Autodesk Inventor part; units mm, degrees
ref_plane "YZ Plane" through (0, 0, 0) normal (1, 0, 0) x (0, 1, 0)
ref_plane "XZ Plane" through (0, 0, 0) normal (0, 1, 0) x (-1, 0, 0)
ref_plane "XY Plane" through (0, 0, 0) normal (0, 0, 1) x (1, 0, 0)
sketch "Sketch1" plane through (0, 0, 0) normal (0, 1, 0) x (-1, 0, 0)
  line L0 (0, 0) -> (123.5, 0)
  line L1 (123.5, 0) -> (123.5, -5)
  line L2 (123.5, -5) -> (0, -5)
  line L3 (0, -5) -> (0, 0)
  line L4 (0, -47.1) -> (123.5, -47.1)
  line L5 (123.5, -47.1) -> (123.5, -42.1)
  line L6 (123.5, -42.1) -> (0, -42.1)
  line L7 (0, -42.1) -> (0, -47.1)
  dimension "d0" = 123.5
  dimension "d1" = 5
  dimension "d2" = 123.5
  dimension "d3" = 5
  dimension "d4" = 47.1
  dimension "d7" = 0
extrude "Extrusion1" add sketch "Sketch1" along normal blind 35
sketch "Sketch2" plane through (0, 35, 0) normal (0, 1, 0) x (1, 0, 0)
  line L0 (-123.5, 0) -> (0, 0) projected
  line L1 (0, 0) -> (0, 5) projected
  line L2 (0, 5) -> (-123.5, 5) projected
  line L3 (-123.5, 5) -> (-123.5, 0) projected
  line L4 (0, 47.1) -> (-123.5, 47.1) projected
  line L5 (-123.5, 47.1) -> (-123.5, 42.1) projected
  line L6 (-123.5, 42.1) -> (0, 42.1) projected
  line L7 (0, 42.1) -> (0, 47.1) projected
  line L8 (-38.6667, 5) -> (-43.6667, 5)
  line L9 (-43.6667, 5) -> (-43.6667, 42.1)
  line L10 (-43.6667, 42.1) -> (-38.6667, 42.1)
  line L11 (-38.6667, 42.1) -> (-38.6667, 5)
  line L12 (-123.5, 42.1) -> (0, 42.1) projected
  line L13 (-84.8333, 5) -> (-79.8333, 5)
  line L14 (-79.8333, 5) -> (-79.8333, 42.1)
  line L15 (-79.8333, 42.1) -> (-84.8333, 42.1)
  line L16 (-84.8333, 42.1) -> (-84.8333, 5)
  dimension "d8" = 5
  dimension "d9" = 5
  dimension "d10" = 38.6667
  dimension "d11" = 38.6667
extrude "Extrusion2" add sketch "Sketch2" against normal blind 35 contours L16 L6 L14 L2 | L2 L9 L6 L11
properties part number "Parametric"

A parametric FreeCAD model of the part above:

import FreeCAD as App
import Part
import Sketcher

doc = App.newDocument("Part")
body = doc.addObject("PartDesign::Body", "Body")
body.AllowCompound = True

sketch1 = body.newObject("Sketcher::SketchObject", "Sketch")
sketch1.AttachmentSupport = (doc.getObject("XZ_Plane"), [""])
sketch1.MapMode = "FlatFace"
sketch1.addGeometry(Part.LineSegment(App.Vector(-124, 0, 0), App.Vector(0, 0, 0)), False)
sketch1.addGeometry(Part.LineSegment(App.Vector(0, 0, 0), App.Vector(0, -5, 0)), False)
sketch1.addGeometry(Part.LineSegment(App.Vector(0, -5, 0), App.Vector(-124, -5, 0)), False)
sketch1.addGeometry(Part.LineSegment(App.Vector(-124, -5, 0), App.Vector(-124, 0, 0)), False)
sketch1.addGeometry(Part.LineSegment(App.Vector(0, -42, 0), App.Vector(0, -47, 0)), False)
sketch1.addGeometry(Part.LineSegment(App.Vector(0, -47, 0), App.Vector(-124, -47, 0)), False)
sketch1.addGeometry(Part.LineSegment(App.Vector(-124, -47, 0), App.Vector(-124, -42, 0)), False)
sketch1.addGeometry(Part.LineSegment(App.Vector(-124, -42, 0), App.Vector(0, -42, 0)), False)
sketch1.addConstraint(Sketcher.Constraint("Coincident", 0, 2, 1, 1))
sketch1.addConstraint(Sketcher.Constraint("Coincident", 1, 2, 2, 1))
sketch1.addConstraint(Sketcher.Constraint("Coincident", 2, 2, 3, 1))
sketch1.addConstraint(Sketcher.Constraint("Coincident", 3, 2, 0, 1))
sketch1.addConstraint(Sketcher.Constraint("Coincident", 4, 2, 5, 1))
sketch1.addConstraint(Sketcher.Constraint("Coincident", 5, 2, 6, 1))
sketch1.addConstraint(Sketcher.Constraint("Coincident", 6, 2, 7, 1))
sketch1.addConstraint(Sketcher.Constraint("Coincident", 7, 2, 4, 1))
sketch1.addConstraint(Sketcher.Constraint("Horizontal", 0))
sketch1.addConstraint(Sketcher.Constraint("Vertical", 1))
sketch1.addConstraint(Sketcher.Constraint("Horizontal", 2))
sketch1.addConstraint(Sketcher.Constraint("Vertical", 3))
sketch1.addConstraint(Sketcher.Constraint("Vertical", 4))
sketch1.addConstraint(Sketcher.Constraint("Horizontal", 5))
sketch1.addConstraint(Sketcher.Constraint("Vertical", 6))
sketch1.addConstraint(Sketcher.Constraint("Horizontal", 7))
sketch1.addConstraint(Sketcher.Constraint("Coincident", 0, 2, -1, 1))
sketch1.addConstraint(Sketcher.Constraint("PointOnObject", 4, 2, -2))
sketch1.addConstraint(Sketcher.Constraint("Vertical", 3, 2, 5, 2))
sketch1.addConstraint(Sketcher.Constraint("Equal", 3, 4))
sketch1.addConstraint(Sketcher.Constraint("DistanceY", 1, 2, 1, 1, 5.0))
sketch1.addConstraint(Sketcher.Constraint("DistanceX", 0, 1, 0, 2, 123.5))
sketch1.addConstraint(Sketcher.Constraint("DistanceY", 4, 2, -1, 1, 47.1))
pad1 = body.newObject("PartDesign::Pad", "Pad")
pad1.Profile = sketch1
pad1.Length = 35
pad1.Reversed = True

sketch2 = body.newObject("Sketcher::SketchObject", "Sketch001")
sketch2.AttachmentSupport = (doc.getObject("XZ_Plane"), [""])
sketch2.MapMode = "FlatFace"
sketch2.AttachmentOffset = App.Placement(App.Vector(0, 0, -35), App.Rotation())
sketch2.addGeometry(Part.LineSegment(App.Vector(-85, -42, 0), App.Vector(-85, -5, 0)), False)
sketch2.addGeometry(Part.LineSegment(App.Vector(-85, -5, 0), App.Vector(-80, -5, 0)), False)
sketch2.addGeometry(Part.LineSegment(App.Vector(-80, -5, 0), App.Vector(-80, -42, 0)), False)
sketch2.addGeometry(Part.LineSegment(App.Vector(-80, -42, 0), App.Vector(-85, -42, 0)), False)
sketch2.addGeometry(Part.LineSegment(App.Vector(-44, -5, 0), App.Vector(-39, -5, 0)), False)
sketch2.addGeometry(Part.LineSegment(App.Vector(-39, -5, 0), App.Vector(-39, -42, 0)), False)
sketch2.addGeometry(Part.LineSegment(App.Vector(-39, -42, 0), App.Vector(-44, -42, 0)), False)
sketch2.addGeometry(Part.LineSegment(App.Vector(-44, -42, 0), App.Vector(-44, -5, 0)), False)
sketch2.addConstraint(Sketcher.Constraint("Coincident", 0, 2, 1, 1))
sketch2.addConstraint(Sketcher.Constraint("Coincident", 1, 2, 2, 1))
sketch2.addConstraint(Sketcher.Constraint("Coincident", 2, 2, 3, 1))
sketch2.addConstraint(Sketcher.Constraint("Coincident", 3, 2, 0, 1))
sketch2.addConstraint(Sketcher.Constraint("Coincident", 4, 2, 5, 1))
sketch2.addConstraint(Sketcher.Constraint("Coincident", 5, 2, 6, 1))
sketch2.addConstraint(Sketcher.Constraint("Coincident", 6, 2, 7, 1))
sketch2.addConstraint(Sketcher.Constraint("Coincident", 7, 2, 4, 1))
sketch2.addConstraint(Sketcher.Constraint("Vertical", 0))
sketch2.addConstraint(Sketcher.Constraint("Horizontal", 1))
sketch2.addConstraint(Sketcher.Constraint("Vertical", 2))
sketch2.addConstraint(Sketcher.Constraint("Horizontal", 3))
sketch2.addConstraint(Sketcher.Constraint("Horizontal", 4))
sketch2.addConstraint(Sketcher.Constraint("Vertical", 5))
sketch2.addConstraint(Sketcher.Constraint("Horizontal", 6))
sketch2.addConstraint(Sketcher.Constraint("Vertical", 7))
sketch2.addConstraint(Sketcher.Constraint("Horizontal", 1, 2, 4, 2))
sketch2.addConstraint(Sketcher.Constraint("Horizontal", 3, 2, 5, 2))
sketch2.addConstraint(Sketcher.Constraint("Equal", 3, 4))
sketch2.addConstraint(Sketcher.Constraint("DistanceX", 1, 1, 1, 2, 5.0))
sketch2.addConstraint(Sketcher.Constraint("DistanceY", 0, 2, -1, 1, 5.0))
sketch2.addConstraint(Sketcher.Constraint("DistanceY", 0, 1, 0, 2, 37.1))
sketch2.addConstraint(Sketcher.Constraint("DistanceX", 4, 2, -1, 1, 38.6667))
sketch2.addConstraint(Sketcher.Constraint("DistanceX", 0, 2, -1, 1, 84.8333))
pad2 = body.newObject("PartDesign::Pad", "Pad001")
pad2.Profile = sketch2
pad2.Length = 35

doc.recompute()
